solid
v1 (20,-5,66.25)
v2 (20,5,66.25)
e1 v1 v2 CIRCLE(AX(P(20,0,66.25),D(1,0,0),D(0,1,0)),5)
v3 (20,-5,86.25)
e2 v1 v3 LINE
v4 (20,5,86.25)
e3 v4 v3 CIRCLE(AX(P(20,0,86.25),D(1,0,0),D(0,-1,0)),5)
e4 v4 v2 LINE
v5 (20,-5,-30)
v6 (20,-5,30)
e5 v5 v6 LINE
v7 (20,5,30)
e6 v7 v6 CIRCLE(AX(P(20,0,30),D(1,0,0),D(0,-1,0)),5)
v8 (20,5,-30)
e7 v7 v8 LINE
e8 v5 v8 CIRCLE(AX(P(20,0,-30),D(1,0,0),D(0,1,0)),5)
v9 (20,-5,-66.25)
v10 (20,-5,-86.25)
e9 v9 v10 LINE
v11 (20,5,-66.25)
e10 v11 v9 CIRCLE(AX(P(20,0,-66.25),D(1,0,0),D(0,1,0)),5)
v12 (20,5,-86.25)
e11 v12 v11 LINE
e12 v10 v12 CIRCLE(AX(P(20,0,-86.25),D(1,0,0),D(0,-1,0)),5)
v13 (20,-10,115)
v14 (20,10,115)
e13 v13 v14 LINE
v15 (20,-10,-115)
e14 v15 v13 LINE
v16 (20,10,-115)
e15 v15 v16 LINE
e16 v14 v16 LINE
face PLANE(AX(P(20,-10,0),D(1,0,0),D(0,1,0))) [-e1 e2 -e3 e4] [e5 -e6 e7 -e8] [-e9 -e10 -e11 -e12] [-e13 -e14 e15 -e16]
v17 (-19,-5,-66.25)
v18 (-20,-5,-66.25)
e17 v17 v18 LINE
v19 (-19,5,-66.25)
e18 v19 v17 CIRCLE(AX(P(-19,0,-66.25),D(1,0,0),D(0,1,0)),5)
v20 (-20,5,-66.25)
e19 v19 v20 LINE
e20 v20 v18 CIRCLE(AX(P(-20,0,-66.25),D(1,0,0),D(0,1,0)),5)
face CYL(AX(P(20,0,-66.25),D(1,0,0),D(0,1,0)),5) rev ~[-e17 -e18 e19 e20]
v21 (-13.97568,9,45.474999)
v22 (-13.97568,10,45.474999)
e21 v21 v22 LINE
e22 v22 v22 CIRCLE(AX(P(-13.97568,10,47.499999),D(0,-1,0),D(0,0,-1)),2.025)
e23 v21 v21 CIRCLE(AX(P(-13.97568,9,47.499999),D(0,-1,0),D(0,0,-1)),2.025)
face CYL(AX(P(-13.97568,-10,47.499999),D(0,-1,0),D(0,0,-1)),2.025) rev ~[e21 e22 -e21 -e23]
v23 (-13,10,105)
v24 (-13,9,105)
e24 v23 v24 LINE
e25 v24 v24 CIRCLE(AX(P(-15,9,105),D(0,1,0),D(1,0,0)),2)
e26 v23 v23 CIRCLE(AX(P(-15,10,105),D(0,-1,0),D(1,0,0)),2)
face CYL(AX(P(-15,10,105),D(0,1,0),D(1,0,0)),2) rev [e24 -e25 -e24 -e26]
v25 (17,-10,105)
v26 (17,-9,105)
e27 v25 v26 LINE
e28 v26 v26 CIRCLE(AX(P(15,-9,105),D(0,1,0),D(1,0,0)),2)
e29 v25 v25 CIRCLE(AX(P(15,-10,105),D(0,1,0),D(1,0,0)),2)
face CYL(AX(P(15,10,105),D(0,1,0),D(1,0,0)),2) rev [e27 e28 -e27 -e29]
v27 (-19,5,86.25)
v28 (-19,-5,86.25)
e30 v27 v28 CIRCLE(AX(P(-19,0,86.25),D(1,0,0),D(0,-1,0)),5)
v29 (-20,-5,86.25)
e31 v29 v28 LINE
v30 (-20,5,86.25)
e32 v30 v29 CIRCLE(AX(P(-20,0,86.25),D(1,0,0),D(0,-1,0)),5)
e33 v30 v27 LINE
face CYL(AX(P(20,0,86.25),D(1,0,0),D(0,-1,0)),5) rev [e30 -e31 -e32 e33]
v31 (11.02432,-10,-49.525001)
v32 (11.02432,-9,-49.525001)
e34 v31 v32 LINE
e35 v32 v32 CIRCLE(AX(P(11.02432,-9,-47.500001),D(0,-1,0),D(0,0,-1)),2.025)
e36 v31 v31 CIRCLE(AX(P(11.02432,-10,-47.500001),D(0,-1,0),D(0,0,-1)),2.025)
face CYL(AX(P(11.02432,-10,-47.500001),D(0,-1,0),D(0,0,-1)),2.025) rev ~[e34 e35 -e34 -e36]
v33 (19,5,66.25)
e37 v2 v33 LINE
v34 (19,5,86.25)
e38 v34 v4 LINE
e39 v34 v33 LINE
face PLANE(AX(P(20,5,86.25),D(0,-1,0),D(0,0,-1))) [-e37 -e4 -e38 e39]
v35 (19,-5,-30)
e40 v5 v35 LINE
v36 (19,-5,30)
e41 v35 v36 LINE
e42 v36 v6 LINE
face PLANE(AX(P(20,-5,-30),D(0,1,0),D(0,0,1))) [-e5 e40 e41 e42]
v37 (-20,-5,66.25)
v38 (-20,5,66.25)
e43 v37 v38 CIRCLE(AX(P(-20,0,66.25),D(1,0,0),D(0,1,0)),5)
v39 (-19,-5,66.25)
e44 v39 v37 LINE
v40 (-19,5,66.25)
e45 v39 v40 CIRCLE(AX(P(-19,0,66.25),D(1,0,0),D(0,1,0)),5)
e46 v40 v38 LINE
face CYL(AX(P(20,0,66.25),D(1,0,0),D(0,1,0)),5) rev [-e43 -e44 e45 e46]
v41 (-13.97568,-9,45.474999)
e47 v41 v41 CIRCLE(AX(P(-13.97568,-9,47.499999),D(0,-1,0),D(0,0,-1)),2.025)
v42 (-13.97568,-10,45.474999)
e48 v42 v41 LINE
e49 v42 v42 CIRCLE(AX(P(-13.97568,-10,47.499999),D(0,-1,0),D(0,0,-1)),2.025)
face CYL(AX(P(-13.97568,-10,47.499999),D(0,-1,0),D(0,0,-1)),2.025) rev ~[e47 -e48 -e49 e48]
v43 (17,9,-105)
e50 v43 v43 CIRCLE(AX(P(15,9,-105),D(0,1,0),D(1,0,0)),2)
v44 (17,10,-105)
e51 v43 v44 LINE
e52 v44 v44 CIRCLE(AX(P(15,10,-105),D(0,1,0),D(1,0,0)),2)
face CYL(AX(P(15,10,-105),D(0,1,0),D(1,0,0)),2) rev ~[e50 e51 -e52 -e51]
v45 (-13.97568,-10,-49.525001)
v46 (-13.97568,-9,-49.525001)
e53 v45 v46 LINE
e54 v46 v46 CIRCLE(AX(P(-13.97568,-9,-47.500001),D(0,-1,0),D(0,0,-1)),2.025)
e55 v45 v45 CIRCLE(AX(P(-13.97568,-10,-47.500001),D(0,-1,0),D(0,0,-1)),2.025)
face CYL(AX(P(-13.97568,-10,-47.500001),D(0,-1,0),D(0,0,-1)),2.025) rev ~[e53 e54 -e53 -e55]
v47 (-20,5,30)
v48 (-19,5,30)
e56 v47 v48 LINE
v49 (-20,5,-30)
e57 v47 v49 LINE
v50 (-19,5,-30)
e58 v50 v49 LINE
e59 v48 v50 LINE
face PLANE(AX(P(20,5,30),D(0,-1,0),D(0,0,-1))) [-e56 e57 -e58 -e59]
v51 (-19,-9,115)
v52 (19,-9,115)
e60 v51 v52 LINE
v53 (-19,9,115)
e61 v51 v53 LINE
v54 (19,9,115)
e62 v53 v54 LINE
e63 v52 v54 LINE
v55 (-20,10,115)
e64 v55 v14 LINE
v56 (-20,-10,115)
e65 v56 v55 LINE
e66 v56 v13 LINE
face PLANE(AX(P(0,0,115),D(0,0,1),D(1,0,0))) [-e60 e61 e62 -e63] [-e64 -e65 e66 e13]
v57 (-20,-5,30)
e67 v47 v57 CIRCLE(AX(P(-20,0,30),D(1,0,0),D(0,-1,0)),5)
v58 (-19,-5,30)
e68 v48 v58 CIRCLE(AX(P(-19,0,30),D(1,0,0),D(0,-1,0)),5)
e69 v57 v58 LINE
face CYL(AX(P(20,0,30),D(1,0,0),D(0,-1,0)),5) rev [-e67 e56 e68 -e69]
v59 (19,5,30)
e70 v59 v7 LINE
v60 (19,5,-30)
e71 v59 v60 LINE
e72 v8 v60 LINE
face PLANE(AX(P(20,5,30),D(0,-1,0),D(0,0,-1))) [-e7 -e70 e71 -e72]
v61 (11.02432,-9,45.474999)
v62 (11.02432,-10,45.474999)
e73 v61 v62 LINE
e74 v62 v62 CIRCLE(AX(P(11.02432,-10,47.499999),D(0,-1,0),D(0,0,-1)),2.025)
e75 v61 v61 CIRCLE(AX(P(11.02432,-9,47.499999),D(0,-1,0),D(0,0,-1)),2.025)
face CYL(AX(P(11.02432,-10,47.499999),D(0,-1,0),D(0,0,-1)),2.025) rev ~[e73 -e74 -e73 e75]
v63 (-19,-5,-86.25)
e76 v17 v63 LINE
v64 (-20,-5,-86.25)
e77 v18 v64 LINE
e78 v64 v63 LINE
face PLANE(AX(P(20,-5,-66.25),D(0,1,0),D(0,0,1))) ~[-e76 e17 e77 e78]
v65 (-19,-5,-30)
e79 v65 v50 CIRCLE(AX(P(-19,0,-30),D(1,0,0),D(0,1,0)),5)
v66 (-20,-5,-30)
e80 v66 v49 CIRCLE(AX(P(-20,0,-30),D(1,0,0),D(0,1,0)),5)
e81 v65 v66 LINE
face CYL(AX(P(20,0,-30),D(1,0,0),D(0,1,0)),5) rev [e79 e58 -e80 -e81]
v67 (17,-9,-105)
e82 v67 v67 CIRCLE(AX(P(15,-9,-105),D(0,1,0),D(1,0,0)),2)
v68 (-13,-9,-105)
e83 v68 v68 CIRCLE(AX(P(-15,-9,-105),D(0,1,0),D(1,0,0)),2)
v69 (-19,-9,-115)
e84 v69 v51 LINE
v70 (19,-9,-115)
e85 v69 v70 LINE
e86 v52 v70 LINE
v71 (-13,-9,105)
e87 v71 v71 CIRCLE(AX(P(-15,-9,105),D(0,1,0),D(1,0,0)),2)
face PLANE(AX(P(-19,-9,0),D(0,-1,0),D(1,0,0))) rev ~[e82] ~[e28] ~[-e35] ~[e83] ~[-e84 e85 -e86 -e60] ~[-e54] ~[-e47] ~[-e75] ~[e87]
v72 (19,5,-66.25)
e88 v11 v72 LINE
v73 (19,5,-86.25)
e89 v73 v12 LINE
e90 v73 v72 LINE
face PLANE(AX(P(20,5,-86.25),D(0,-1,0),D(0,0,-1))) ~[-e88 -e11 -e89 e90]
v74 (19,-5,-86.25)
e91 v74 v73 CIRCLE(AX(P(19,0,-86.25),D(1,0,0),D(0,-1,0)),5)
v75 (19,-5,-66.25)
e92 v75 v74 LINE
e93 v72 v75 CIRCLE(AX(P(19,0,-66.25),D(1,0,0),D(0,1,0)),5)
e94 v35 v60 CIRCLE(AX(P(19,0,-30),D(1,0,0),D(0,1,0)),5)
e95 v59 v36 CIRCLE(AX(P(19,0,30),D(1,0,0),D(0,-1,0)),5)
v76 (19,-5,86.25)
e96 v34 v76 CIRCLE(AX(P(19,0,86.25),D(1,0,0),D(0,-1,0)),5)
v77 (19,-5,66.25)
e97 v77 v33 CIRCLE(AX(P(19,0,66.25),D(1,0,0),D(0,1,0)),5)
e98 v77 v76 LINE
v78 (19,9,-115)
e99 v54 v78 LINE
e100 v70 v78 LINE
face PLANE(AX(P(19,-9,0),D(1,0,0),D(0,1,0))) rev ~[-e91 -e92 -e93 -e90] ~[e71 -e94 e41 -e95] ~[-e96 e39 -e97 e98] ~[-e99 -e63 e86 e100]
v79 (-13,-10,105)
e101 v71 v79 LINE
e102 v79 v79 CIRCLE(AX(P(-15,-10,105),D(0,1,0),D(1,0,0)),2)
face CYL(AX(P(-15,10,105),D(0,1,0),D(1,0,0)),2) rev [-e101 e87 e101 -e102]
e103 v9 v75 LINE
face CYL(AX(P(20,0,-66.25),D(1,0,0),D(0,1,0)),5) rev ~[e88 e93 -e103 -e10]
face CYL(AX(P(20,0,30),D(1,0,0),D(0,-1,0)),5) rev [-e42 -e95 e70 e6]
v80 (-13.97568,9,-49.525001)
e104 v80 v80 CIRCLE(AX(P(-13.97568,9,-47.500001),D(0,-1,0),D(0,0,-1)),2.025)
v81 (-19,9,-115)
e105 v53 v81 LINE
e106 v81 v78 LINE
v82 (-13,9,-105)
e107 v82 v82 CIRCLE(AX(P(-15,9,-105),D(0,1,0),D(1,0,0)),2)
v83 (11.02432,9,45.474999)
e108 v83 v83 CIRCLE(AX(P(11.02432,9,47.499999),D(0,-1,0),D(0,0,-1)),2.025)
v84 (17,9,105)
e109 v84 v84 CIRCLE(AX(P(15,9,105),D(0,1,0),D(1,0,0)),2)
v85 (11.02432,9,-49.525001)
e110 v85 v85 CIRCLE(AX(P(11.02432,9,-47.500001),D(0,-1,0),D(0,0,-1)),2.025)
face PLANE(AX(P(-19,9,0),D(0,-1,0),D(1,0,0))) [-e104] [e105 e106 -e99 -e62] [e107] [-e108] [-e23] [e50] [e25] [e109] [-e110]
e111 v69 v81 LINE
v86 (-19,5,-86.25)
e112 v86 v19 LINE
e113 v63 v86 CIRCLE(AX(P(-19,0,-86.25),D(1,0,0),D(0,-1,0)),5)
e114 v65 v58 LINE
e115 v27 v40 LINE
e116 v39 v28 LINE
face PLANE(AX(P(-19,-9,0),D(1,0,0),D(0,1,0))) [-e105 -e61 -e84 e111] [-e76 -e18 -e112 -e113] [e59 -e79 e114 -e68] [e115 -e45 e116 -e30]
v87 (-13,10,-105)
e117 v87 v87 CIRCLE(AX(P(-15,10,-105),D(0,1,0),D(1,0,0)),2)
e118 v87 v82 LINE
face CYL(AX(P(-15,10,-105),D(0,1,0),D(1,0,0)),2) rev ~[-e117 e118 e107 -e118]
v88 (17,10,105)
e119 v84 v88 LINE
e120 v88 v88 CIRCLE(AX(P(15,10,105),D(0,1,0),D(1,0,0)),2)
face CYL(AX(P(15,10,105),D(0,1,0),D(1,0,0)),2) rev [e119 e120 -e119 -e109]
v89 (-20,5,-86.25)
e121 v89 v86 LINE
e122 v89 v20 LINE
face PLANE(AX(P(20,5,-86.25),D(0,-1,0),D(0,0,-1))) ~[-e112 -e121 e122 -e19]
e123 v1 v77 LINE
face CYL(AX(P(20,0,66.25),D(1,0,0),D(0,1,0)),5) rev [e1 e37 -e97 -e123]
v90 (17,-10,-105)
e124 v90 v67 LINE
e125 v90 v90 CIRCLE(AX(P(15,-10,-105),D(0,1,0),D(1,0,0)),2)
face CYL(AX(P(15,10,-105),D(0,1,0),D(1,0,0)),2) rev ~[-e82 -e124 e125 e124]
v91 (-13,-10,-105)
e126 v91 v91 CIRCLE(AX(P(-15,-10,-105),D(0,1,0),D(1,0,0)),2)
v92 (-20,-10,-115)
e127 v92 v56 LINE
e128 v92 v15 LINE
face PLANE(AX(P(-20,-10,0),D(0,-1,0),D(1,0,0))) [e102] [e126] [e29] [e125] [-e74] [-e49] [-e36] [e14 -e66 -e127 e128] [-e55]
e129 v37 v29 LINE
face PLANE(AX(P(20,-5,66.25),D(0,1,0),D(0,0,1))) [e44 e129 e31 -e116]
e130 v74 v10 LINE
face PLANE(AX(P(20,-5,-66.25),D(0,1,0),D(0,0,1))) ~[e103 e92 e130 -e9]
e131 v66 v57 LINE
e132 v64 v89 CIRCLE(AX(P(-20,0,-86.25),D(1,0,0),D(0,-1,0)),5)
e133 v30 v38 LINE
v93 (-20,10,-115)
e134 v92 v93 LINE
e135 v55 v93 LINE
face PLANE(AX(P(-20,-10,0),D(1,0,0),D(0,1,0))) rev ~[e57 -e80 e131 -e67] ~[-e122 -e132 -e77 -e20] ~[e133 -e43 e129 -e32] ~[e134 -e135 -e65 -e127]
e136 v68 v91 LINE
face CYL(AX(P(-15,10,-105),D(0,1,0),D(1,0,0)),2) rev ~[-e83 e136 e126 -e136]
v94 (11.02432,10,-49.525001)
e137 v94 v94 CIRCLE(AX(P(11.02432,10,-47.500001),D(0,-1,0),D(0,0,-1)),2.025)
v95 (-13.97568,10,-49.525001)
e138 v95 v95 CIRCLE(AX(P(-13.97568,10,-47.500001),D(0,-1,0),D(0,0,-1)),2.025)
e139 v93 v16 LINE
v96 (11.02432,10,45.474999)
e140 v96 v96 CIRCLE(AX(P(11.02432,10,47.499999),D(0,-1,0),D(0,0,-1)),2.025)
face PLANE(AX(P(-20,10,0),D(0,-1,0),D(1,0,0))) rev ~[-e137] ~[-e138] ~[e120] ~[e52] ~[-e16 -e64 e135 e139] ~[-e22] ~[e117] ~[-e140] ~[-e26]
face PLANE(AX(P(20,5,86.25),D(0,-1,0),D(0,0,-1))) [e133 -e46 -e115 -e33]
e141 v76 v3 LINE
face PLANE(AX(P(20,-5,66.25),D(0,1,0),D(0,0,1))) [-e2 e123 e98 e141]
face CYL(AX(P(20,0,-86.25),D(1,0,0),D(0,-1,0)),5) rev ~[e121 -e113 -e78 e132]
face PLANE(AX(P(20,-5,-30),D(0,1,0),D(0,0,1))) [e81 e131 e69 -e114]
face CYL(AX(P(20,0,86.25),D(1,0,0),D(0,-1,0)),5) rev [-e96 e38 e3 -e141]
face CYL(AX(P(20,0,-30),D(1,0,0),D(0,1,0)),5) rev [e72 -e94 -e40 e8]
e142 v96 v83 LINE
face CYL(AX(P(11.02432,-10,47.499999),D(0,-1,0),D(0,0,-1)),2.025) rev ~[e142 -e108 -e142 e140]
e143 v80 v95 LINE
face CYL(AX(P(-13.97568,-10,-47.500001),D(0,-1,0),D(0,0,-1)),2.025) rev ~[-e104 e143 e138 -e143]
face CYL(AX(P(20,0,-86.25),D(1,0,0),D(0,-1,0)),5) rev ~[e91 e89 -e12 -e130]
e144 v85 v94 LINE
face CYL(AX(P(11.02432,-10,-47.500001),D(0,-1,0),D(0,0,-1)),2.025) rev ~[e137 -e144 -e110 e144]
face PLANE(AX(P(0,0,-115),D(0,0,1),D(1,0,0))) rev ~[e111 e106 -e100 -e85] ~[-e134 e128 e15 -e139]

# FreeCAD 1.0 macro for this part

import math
import FreeCAD as App
import Part
import Sketcher

V = App.Vector


def add_polygon(sketch, points):
    """Adds a closed chain of lines whose ends are joined by coincident constraints."""
    first, n = sketch.GeometryCount, len(points)
    for a, b in zip(points, points[1:] + points[:1]):
        sketch.addGeometry(Part.LineSegment(App.Vector(*a, 0), App.Vector(*b, 0)), False)
    for i in range(n):
        sketch.addConstraint(Sketcher.Constraint("Coincident", first + i, 2, first + (i + 1) % n, 1))

doc = App.newDocument("Part")
params = doc.addObject("Spreadsheet::Sheet", "Params")
for row, (alias, value) in enumerate([
    ("sketch1_width", "40 mm"),
    ("sketch1_width2", "38 mm"),
    ("sketch1_height", "20 mm"),
    ("sketch1_height2", "18 mm"),
    ("pad1_length", "230 mm"),
    ("sketch2_diameter", "4 mm"),
    ("pocket1_length", "230 mm"),
    ("sketch3_diameter", "4.05 mm"),
    ("pocket2_length", "70 mm"),
    ("sketch4_radius", "5 mm"),
    ("sketch4_height", "60 mm"),
    ("pocket3_length", "259 mm"),
    ("sketch5_radius", "5 mm"),
    ("sketch5_height", "20 mm"),
    ("pocket4_length", "259 mm"),
], start=1):
    params.set(f"A{row}", alias)
    params.set(f"B{row}", "=" + value)
    params.setAlias(f"B{row}", alias)

body = doc.addObject("PartDesign::Body", "Body")

sketch1 = body.newObject("Sketcher::SketchObject", "Sketch")
sketch1.AttachmentSupport = (doc.getObject("XY_Plane"), [""])
sketch1.MapMode = "FlatFace"
add_polygon(sketch1, [(-20, 10), (-20, -10), (20, -10), (20, 10)])
add_polygon(sketch1, [(19, -9), (-19, -9), (-19, 9), (19, 9)])
sketch1.addConstraint(Sketcher.Constraint("Vertical", 0))
sketch1.addConstraint(Sketcher.Constraint("Horizontal", 1))
sketch1.addConstraint(Sketcher.Constraint("Vertical", 2))
sketch1.addConstraint(Sketcher.Constraint("Horizontal", 3))
sketch1.addConstraint(Sketcher.Constraint("Horizontal", 4))
sketch1.addConstraint(Sketcher.Constraint("Vertical", 5))
sketch1.addConstraint(Sketcher.Constraint("Horizontal", 6))
sketch1.addConstraint(Sketcher.Constraint("Vertical", 7))
sketch1.addConstraint(Sketcher.Constraint("Symmetric", 0, 2, 2, 2, -1, 1))
sketch1.addConstraint(Sketcher.Constraint("Symmetric", 4, 2, 6, 2, -1, 1))
sketch1.addConstraint(Sketcher.Constraint("DistanceX", 1, 1, 1, 2, 40.0))
sketch1.addConstraint(Sketcher.Constraint("DistanceX", 4, 2, 4, 1, 38.0))
sketch1.addConstraint(Sketcher.Constraint("DistanceY", 0, 2, 0, 1, 20.0))
sketch1.addConstraint(Sketcher.Constraint("DistanceY", 5, 1, 5, 2, 18.0))
sketch1.setExpression("Constraints[18]", "Params.sketch1_width")
sketch1.setExpression("Constraints[19]", "Params.sketch1_width2")
sketch1.setExpression("Constraints[20]", "Params.sketch1_height")
sketch1.setExpression("Constraints[21]", "Params.sketch1_height2")
pad1 = body.newObject("PartDesign::Pad", "Pad")
pad1.Profile = sketch1
pad1.setExpression("Length", "Params.pad1_length")
pad1.Midplane = True

sketch2 = body.newObject("Sketcher::SketchObject", "Sketch001")
sketch2.AttachmentSupport = (doc.getObject("XZ_Plane"), [""])
sketch2.MapMode = "FlatFace"
sketch2.AttachmentOffset = App.Placement(V(0, 0, -10), App.Rotation())
sketch2.addGeometry(Part.Circle(V(-15, -105, 0), V(0, 0, 1), 2), False)
sketch2.addGeometry(Part.Circle(V(15, -105, 0), V(0, 0, 1), 2), False)
sketch2.addConstraint(Sketcher.Constraint("Equal", 0, 1))
sketch2.addConstraint(Sketcher.Constraint("Symmetric", 0, 3, 1, 3, -2))
sketch2.addConstraint(Sketcher.Constraint("Diameter", 0, 4.0))
sketch2.addConstraint(Sketcher.Constraint("DistanceX", 0, 3, -1, 1, 15.0))
sketch2.addConstraint(Sketcher.Constraint("DistanceY", 0, 3, -1, 1, 105.0))
sketch2.setExpression("Constraints[2]", "Params.sketch2_diameter")
pocket1 = body.newObject("PartDesign::Pocket", "Pocket")
pocket1.Profile = sketch2
pocket1.setExpression("Length", "Params.pocket1_length")
pocket1.Midplane = True
doc.recompute()

mirrored = body.newObject("PartDesign::Mirrored", "Mirrored")
mirrored.Originals = [pocket1]
mirrored.MirrorPlane = (doc.getObject("XY_Plane"), [""])
body.Tip = mirrored

sketch3 = body.newObject("Sketcher::SketchObject", "Sketch002")
sketch3.AttachmentSupport = (doc.getObject("XZ_Plane"), [""])
sketch3.MapMode = "FlatFace"
sketch3.AttachmentOffset = App.Placement(V(0, 0, 10), App.Rotation())
sketch3.addGeometry(Part.Circle(V(-13.97568, -47.500001, 0), V(0, 0, 1), 2.025), False)
sketch3.addGeometry(Part.Circle(V(11.02432, -47.500001, 0), V(0, 0, 1), 2.025), False)
sketch3.addGeometry(Part.Circle(V(-13.97568, 47.499999, 0), V(0, 0, 1), 2.025), False)
sketch3.addGeometry(Part.Circle(V(11.02432, 47.499999, 0), V(0, 0, 1), 2.025), False)
sketch3.addConstraint(Sketcher.Constraint("Equal", 0, 1))
sketch3.addConstraint(Sketcher.Constraint("Equal", 1, 2))
sketch3.addConstraint(Sketcher.Constraint("Equal", 2, 3))
sketch3.addConstraint(Sketcher.Constraint("Symmetric", 0, 3, 2, 3, -1))
sketch3.addConstraint(Sketcher.Constraint("Symmetric", 1, 3, 3, 3, -1))
sketch3.addConstraint(Sketcher.Constraint("Horizontal", 0, 3, 1, 3))
sketch3.addConstraint(Sketcher.Constraint("Diameter", 0, 4.05))
sketch3.addConstraint(Sketcher.Constraint("DistanceX", 0, 3, 1, 3, 25.0))
sketch3.addConstraint(Sketcher.Constraint("DistanceY", 0, 3, 2, 3, 95.0))
sketch3.addConstraint(Sketcher.Constraint("DistanceX", 0, 3, -1, 1, 13.97568))
sketch3.setExpression("Constraints[6]", "Params.sketch3_diameter")
pocket2 = body.newObject("PartDesign::Pocket", "Pocket001")
pocket2.Profile = sketch3
pocket2.setExpression("Length", "Params.pocket2_length")
pocket2.Midplane = True

sketch4 = body.newObject("Sketcher::SketchObject", "Sketch003")
sketch4.AttachmentSupport = (doc.getObject("YZ_Plane"), [""])
sketch4.MapMode = "FlatFace"
sketch4.AttachmentOffset = App.Placement(V(0, 0, 20), App.Rotation())
sketch4.addGeometry(Part.LineSegment(V(5, -30, 0), V(5, 30, 0)), False)
sketch4.addGeometry(Part.ArcOfCircle(Part.Circle(V(0, 30, 0), V(0, 0, 1), 5), math.radians(0), math.radians(180)), False)
sketch4.addGeometry(Part.LineSegment(V(-5, 30, 0), V(-5, -30, 0)), False)
sketch4.addGeometry(Part.ArcOfCircle(Part.Circle(V(0, -30, 0), V(0, 0, 1), 5), math.radians(180), math.radians(360)), False)
sketch4.addConstraint(Sketcher.Constraint("Tangent", 0, 2, 1, 1))
sketch4.addConstraint(Sketcher.Constraint("Tangent", 1, 2, 2, 1))
sketch4.addConstraint(Sketcher.Constraint("Tangent", 2, 2, 3, 1))
sketch4.addConstraint(Sketcher.Constraint("Tangent", 3, 2, 0, 1))
sketch4.addConstraint(Sketcher.Constraint("Vertical", 0))
sketch4.addConstraint(Sketcher.Constraint("Vertical", 2))
sketch4.addConstraint(Sketcher.Constraint("Symmetric", 1, 3, 3, 3, -1, 1))
sketch4.addConstraint(Sketcher.Constraint("Radius", 1, 5.0))
sketch4.addConstraint(Sketcher.Constraint("DistanceY", 0, 1, 0, 2, 60.0))
sketch4.setExpression("Constraints[7]", "Params.sketch4_radius")
sketch4.setExpression("Constraints[8]", "Params.sketch4_height")
pocket3 = body.newObject("PartDesign::Pocket", "Pocket002")
pocket3.Profile = sketch4
pocket3.setExpression("Length", "Params.pocket3_length")
pocket3.Midplane = True

sketch5 = body.newObject("Sketcher::SketchObject", "Sketch004")
sketch5.AttachmentSupport = (doc.getObject("YZ_Plane"), [""])
sketch5.MapMode = "FlatFace"
sketch5.AttachmentOffset = App.Placement(V(0, 0, 20), App.Rotation())
sketch5.addGeometry(Part.LineSegment(V(5, 66.25, 0), V(5, 86.25, 0)), False)
sketch5.addGeometry(Part.ArcOfCircle(Part.Circle(V(0, 86.25, 0), V(0, 0, 1), 5), math.radians(0), math.radians(180)), False)
sketch5.addGeometry(Part.LineSegment(V(-5, 86.25, 0), V(-5, 66.25, 0)), False)
sketch5.addGeometry(Part.ArcOfCircle(Part.Circle(V(0, 66.25, 0), V(0, 0, 1), 5), math.radians(180), math.radians(360)), False)
sketch5.addConstraint(Sketcher.Constraint("Tangent", 0, 2, 1, 1))
sketch5.addConstraint(Sketcher.Constraint("Tangent", 1, 2, 2, 1))
sketch5.addConstraint(Sketcher.Constraint("Tangent", 2, 2, 3, 1))
sketch5.addConstraint(Sketcher.Constraint("Tangent", 3, 2, 0, 1))
sketch5.addConstraint(Sketcher.Constraint("Vertical", 0))
sketch5.addConstraint(Sketcher.Constraint("Vertical", 2))
sketch5.addConstraint(Sketcher.Constraint("PointOnObject", 1, 3, -2))
sketch5.addConstraint(Sketcher.Constraint("Radius", 1, 5.0))
sketch5.addConstraint(Sketcher.Constraint("DistanceY", 0, 1, 0, 2, 20.0))
sketch5.addConstraint(Sketcher.Constraint("DistanceY", -1, 1, 1, 3, 86.25))
sketch5.setExpression("Constraints[7]", "Params.sketch5_radius")
sketch5.setExpression("Constraints[8]", "Params.sketch5_height")
pocket4 = body.newObject("PartDesign::Pocket", "Pocket003")
pocket4.Profile = sketch5
pocket4.setExpression("Length", "Params.pocket4_length")
pocket4.Midplane = True
doc.recompute()

mirrored2 = body.newObject("PartDesign::Mirrored", "Mirrored001")
mirrored2.Originals = [pocket4]
mirrored2.MirrorPlane = (doc.getObject("XY_Plane"), [""])
body.Tip = mirrored2

doc.recompute()
